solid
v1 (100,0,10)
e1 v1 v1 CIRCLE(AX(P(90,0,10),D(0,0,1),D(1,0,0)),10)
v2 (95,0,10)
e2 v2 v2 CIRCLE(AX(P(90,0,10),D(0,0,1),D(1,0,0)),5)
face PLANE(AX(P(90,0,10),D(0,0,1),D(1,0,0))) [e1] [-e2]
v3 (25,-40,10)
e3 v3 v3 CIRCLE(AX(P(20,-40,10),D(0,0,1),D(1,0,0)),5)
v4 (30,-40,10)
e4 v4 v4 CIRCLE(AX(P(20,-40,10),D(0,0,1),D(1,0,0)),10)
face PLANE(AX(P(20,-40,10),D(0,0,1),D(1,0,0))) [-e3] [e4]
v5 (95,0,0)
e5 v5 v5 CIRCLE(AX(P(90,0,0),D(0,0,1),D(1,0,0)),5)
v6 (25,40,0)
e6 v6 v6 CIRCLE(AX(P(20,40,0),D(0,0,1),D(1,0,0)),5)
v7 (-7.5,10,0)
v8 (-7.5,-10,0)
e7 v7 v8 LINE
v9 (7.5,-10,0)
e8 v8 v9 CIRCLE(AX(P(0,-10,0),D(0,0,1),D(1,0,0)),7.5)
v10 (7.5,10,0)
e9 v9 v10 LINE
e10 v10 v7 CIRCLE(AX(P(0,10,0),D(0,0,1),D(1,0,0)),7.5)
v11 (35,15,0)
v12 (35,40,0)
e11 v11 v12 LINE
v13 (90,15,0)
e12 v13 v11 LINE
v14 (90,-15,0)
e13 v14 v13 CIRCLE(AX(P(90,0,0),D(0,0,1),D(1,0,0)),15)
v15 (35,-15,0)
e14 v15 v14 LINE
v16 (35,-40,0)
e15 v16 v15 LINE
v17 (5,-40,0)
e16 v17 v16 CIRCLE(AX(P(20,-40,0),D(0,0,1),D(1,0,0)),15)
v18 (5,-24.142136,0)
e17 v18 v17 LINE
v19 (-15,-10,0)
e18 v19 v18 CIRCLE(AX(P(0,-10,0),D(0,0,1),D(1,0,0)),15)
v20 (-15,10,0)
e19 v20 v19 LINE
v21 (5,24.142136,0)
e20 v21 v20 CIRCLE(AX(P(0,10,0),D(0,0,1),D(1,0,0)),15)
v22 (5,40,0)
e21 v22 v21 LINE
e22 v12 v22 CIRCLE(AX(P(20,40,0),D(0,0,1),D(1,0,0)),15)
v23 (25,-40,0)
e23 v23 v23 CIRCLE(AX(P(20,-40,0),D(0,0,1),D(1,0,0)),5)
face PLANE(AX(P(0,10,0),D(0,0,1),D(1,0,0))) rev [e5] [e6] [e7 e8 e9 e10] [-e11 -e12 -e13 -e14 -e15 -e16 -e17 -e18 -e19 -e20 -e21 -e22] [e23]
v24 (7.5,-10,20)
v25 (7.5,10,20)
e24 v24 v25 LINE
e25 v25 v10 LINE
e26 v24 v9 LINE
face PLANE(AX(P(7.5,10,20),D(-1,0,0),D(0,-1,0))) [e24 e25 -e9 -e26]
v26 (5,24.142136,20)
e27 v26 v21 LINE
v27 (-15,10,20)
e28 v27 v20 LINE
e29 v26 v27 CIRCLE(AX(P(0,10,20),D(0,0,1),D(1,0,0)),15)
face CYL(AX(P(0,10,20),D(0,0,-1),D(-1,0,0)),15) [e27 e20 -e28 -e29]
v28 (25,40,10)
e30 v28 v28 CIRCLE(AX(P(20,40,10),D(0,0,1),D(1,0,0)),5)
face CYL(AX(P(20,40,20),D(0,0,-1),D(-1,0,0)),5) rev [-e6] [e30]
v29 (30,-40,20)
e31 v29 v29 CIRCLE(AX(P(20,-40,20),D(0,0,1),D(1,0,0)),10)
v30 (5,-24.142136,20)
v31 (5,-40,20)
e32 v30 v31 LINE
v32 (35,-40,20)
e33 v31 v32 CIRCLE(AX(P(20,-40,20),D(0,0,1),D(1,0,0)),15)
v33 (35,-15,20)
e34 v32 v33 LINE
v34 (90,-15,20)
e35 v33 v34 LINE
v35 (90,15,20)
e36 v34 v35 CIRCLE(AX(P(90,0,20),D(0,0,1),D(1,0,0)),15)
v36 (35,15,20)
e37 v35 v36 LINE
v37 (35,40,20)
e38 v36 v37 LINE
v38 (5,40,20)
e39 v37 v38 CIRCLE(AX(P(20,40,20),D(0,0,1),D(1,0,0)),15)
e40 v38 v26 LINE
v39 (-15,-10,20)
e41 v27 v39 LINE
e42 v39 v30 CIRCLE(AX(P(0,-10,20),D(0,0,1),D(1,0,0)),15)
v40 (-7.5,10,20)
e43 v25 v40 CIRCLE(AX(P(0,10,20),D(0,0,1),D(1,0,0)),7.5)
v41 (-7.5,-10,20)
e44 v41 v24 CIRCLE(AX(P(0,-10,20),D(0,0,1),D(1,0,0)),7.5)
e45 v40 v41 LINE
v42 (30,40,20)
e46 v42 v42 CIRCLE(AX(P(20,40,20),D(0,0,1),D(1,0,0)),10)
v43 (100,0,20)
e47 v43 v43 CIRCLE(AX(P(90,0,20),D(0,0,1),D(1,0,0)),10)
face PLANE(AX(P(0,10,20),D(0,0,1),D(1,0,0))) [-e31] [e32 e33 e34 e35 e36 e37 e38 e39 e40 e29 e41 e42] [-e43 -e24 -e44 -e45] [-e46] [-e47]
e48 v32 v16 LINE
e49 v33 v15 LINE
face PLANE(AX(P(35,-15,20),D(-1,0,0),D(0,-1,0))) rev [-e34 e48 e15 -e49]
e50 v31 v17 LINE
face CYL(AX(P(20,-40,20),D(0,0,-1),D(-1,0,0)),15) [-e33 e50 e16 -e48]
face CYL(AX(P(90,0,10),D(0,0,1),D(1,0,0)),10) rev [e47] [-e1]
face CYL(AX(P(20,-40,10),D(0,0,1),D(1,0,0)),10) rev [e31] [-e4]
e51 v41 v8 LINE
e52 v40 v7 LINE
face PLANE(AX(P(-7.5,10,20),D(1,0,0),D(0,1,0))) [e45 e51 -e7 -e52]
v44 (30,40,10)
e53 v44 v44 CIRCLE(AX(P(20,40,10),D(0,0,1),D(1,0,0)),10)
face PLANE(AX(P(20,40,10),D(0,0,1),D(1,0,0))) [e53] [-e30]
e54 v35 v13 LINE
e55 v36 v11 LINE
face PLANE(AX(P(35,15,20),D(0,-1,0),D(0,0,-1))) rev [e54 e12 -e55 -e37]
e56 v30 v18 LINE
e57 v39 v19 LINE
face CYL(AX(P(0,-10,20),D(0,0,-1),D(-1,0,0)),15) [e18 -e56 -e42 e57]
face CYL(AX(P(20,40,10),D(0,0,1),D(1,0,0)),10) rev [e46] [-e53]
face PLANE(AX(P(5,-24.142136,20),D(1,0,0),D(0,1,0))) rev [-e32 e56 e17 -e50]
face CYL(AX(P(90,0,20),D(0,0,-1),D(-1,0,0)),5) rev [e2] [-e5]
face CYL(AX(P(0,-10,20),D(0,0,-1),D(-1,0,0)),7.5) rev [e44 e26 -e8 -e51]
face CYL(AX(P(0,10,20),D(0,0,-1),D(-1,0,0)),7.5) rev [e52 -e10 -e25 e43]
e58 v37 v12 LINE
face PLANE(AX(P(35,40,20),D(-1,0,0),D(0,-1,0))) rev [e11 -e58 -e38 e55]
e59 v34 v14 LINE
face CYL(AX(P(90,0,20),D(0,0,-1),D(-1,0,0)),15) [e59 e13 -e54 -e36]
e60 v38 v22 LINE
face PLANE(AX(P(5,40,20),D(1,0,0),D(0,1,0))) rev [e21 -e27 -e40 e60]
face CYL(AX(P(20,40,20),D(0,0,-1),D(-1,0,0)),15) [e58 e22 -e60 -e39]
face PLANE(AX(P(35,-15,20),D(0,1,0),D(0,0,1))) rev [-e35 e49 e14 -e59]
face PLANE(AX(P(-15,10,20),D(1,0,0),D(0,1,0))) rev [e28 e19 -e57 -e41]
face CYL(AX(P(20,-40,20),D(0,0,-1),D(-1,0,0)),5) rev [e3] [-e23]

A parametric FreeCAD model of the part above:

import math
import FreeCAD as App
import Part
import Sketcher

doc = App.newDocument("Part")
params = doc.addObject("Spreadsheet::Sheet", "Params")
for row, (alias, value) in enumerate([
    ("sketch1_diameter", "10 mm"),
    ("sketch1_radius", "15 mm"),
    ("sketch1_radius2", "7.5 mm"),
    ("sketch1_width", "55 mm"),
    ("sketch1_height", "20 mm"),
    ("pad1_length", "20 mm"),
    ("sketch2_diameter", "20 mm"),
    ("pocket1_length", "10 mm"),
], start=1):
    params.set(f"A{row}", alias)
    params.set(f"B{row}", "=" + value)
    params.setAlias(f"B{row}", alias)

body = doc.addObject("PartDesign::Body", "Body")

# Sketch on XY plane
sketch1 = body.newObject("Sketcher::SketchObject", "Sketch")
sketch1.AttachmentSupport = (doc.getObject("XY_Plane"), [""])
sketch1.MapMode = "FlatFace"
sketch1.addGeometry(Part.LineSegment(App.Vector(-15, 10, 0), App.Vector(-15, -10, 0)), False)
sketch1.addGeometry(Part.ArcOfCircle(Part.Circle(App.Vector(0, -10, 0), App.Vector(0, 0, 1), 15), math.radians(180), math.radians(289)), False)
sketch1.addGeometry(Part.LineSegment(App.Vector(5, -24, 0), App.Vector(5, -40, 0)), False)
sketch1.addGeometry(Part.ArcOfCircle(Part.Circle(App.Vector(20, -40, 0), App.Vector(0, 0, 1), 15), math.radians(180), math.radians(360)), False)
sketch1.addGeometry(Part.LineSegment(App.Vector(35, -40, 0), App.Vector(35, -15, 0)), False)
sketch1.addGeometry(Part.LineSegment(App.Vector(35, -15, 0), App.Vector(90, -15, 0)), False)
sketch1.addGeometry(Part.ArcOfCircle(Part.Circle(App.Vector(90, 0, 0), App.Vector(0, 0, 1), 15), math.radians(-90), math.radians(90)), False)
sketch1.addGeometry(Part.LineSegment(App.Vector(90, 15, 0), App.Vector(35, 15, 0)), False)
sketch1.addGeometry(Part.LineSegment(App.Vector(35, 15, 0), App.Vector(35, 40, 0)), False)
sketch1.addGeometry(Part.ArcOfCircle(Part.Circle(App.Vector(20, 40, 0), App.Vector(0, 0, 1), 15), math.radians(0), math.radians(180)), False)
sketch1.addGeometry(Part.LineSegment(App.Vector(5, 40, 0), App.Vector(5, 24, 0)), False)
sketch1.addGeometry(Part.ArcOfCircle(Part.Circle(App.Vector(0, 10, 0), App.Vector(0, 0, 1), 15), math.radians(71), math.radians(180)), False)
sketch1.addGeometry(Part.Circle(App.Vector(20, -40, 0), App.Vector(0, 0, 1), 5), False)
sketch1.addGeometry(Part.ArcOfCircle(Part.Circle(App.Vector(0, 10, 0), App.Vector(0, 0, 1), 8), math.radians(0), math.radians(180)), False)
sketch1.addGeometry(Part.LineSegment(App.Vector(8, 10, 0), App.Vector(8, -10, 0)), False)
sketch1.addGeometry(Part.ArcOfCircle(Part.Circle(App.Vector(0, -10, 0), App.Vector(0, 0, 1), 8), math.radians(180), math.radians(360)), False)
sketch1.addGeometry(Part.LineSegment(App.Vector(-8, -10, 0), App.Vector(-8, 10, 0)), False)
sketch1.addGeometry(Part.Circle(App.Vector(20, 40, 0), App.Vector(0, 0, 1), 5), False)
sketch1.addGeometry(Part.Circle(App.Vector(90, 0, 0), App.Vector(0, 0, 1), 5), False)
sketch1.addConstraint(Sketcher.Constraint("Tangent", 0, 2, 1, 1))
sketch1.addConstraint(Sketcher.Constraint("Coincident", 1, 2, 2, 1))
sketch1.addConstraint(Sketcher.Constraint("Tangent", 2, 2, 3, 1))
sketch1.addConstraint(Sketcher.Constraint("Tangent", 3, 2, 4, 1))
sketch1.addConstraint(Sketcher.Constraint("Coincident", 4, 2, 5, 1))
sketch1.addConstraint(Sketcher.Constraint("Tangent", 5, 2, 6, 1))
sketch1.addConstraint(Sketcher.Constraint("Tangent", 6, 2, 7, 1))
sketch1.addConstraint(Sketcher.Constraint("Coincident", 7, 2, 8, 1))
sketch1.addConstraint(Sketcher.Constraint("Tangent", 8, 2, 9, 1))
sketch1.addConstraint(Sketcher.Constraint("Tangent", 9, 2, 10, 1))
sketch1.addConstraint(Sketcher.Constraint("Coincident", 10, 2, 11, 1))
sketch1.addConstraint(Sketcher.Constraint("Tangent", 11, 2, 0, 1))
sketch1.addConstraint(Sketcher.Constraint("Tangent", 13, 1, 14, 1))
sketch1.addConstraint(Sketcher.Constraint("Tangent", 14, 2, 15, 2))
sketch1.addConstraint(Sketcher.Constraint("Tangent", 15, 1, 16, 1))
sketch1.addConstraint(Sketcher.Constraint("Tangent", 16, 2, 13, 2))
sketch1.addConstraint(Sketcher.Constraint("Vertical", 0))
sketch1.addConstraint(Sketcher.Constraint("Vertical", 2))
sketch1.addConstraint(Sketcher.Constraint("Vertical", 4))
sketch1.addConstraint(Sketcher.Constraint("Horizontal", 5))
sketch1.addConstraint(Sketcher.Constraint("Horizontal", 7))
sketch1.addConstraint(Sketcher.Constraint("Vertical", 8))
sketch1.addConstraint(Sketcher.Constraint("Vertical", 10))
sketch1.addConstraint(Sketcher.Constraint("Vertical", 14))
sketch1.addConstraint(Sketcher.Constraint("Vertical", 16))
sketch1.addConstraint(Sketcher.Constraint("Coincident", 12, 3, 3, 3))
sketch1.addConstraint(Sketcher.Constraint("Coincident", 13, 3, 11, 3))
sketch1.addConstraint(Sketcher.Constraint("Coincident", 15, 3, 1, 3))
sketch1.addConstraint(Sketcher.Constraint("Coincident", 17, 3, 9, 3))
sketch1.addConstraint(Sketcher.Constraint("Coincident", 18, 3, 6, 3))
sketch1.addConstraint(Sketcher.Constraint("Equal", 1, 3))
sketch1.addConstraint(Sketcher.Constraint("Equal", 3, 6))
sketch1.addConstraint(Sketcher.Constraint("Equal", 6, 9))
sketch1.addConstraint(Sketcher.Constraint("Equal", 12, 17))
sketch1.addConstraint(Sketcher.Constraint("Equal", 17, 18))
sketch1.addConstraint(Sketcher.Constraint("Symmetric", 1, 3, 11, 3, -1, 1))
sketch1.addConstraint(Sketcher.Constraint("Symmetric", 3, 3, 9, 3, -1))
sketch1.addConstraint(Sketcher.Constraint("PointOnObject", 6, 3, -1))
sketch1.addConstraint(Sketcher.Constraint("Diameter", 12, 10.0))
sketch1.addConstraint(Sketcher.Constraint("Radius", 1, 15.0))
sketch1.addConstraint(Sketcher.Constraint("Radius", 13, 7.5))
sketch1.addConstraint(Sketcher.Constraint("DistanceX", 5, 1, 5, 2, 55.0))
sketch1.addConstraint(Sketcher.Constraint("DistanceY", 0, 2, 0, 1, 20.0))
sketch1.addConstraint(Sketcher.Constraint("DistanceY", 4, 1, 4, 2, 25.0))
sketch1.addConstraint(Sketcher.Constraint("DistanceX", -1, 1, 3, 3, 20.0))
sketch1.setExpression("Constraints[38]", "Params.sketch1_diameter")
sketch1.setExpression("Constraints[39]", "Params.sketch1_radius")
sketch1.setExpression("Constraints[40]", "Params.sketch1_radius2")
sketch1.setExpression("Constraints[41]", "Params.sketch1_width")
sketch1.setExpression("Constraints[42]", "Params.sketch1_height")
pad1 = body.newObject("PartDesign::Pad", "Pad")
pad1.Profile = sketch1
pad1.setExpression("Length", "Params.pad1_length")

# Sketch on XY plane
sketch2 = body.newObject("Sketcher::SketchObject", "Sketch001")
sketch2.AttachmentSupport = (doc.getObject("XY_Plane"), [""])
sketch2.MapMode = "FlatFace"
sketch2.AttachmentOffset = App.Placement(App.Vector(0, 0, 20), App.Rotation())
sketch2.addGeometry(Part.Circle(App.Vector(20, 40, 0), App.Vector(0, 0, 1), 10), False)
sketch2.addGeometry(Part.Circle(App.Vector(20, -40, 0), App.Vector(0, 0, 1), 10), False)
sketch2.addGeometry(Part.Circle(App.Vector(90, 0, 0), App.Vector(0, 0, 1), 10), False)
sketch2.addConstraint(Sketcher.Constraint("Equal", 0, 1))
sketch2.addConstraint(Sketcher.Constraint("Equal", 1, 2))
sketch2.addConstraint(Sketcher.Constraint("Symmetric", 0, 3, 1, 3, -1))
sketch2.addConstraint(Sketcher.Constraint("PointOnObject", 2, 3, -1))
sketch2.addConstraint(Sketcher.Constraint("Diameter", 0, 20.0))
sketch2.addConstraint(Sketcher.Constraint("DistanceX", -1, 1, 0, 3, 20.0))
sketch2.addConstraint(Sketcher.Constraint("DistanceY", -1, 1, 0, 3, 40.0))
sketch2.addConstraint(Sketcher.Constraint("DistanceX", -1, 1, 2, 3, 90.0))
sketch2.setExpression("Constraints[4]", "Params.sketch2_diameter")
pocket1 = body.newObject("PartDesign::Pocket", "Pocket")
pocket1.Profile = sketch2
pocket1.setExpression("Length", "Params.pocket1_length")

doc.recompute()
